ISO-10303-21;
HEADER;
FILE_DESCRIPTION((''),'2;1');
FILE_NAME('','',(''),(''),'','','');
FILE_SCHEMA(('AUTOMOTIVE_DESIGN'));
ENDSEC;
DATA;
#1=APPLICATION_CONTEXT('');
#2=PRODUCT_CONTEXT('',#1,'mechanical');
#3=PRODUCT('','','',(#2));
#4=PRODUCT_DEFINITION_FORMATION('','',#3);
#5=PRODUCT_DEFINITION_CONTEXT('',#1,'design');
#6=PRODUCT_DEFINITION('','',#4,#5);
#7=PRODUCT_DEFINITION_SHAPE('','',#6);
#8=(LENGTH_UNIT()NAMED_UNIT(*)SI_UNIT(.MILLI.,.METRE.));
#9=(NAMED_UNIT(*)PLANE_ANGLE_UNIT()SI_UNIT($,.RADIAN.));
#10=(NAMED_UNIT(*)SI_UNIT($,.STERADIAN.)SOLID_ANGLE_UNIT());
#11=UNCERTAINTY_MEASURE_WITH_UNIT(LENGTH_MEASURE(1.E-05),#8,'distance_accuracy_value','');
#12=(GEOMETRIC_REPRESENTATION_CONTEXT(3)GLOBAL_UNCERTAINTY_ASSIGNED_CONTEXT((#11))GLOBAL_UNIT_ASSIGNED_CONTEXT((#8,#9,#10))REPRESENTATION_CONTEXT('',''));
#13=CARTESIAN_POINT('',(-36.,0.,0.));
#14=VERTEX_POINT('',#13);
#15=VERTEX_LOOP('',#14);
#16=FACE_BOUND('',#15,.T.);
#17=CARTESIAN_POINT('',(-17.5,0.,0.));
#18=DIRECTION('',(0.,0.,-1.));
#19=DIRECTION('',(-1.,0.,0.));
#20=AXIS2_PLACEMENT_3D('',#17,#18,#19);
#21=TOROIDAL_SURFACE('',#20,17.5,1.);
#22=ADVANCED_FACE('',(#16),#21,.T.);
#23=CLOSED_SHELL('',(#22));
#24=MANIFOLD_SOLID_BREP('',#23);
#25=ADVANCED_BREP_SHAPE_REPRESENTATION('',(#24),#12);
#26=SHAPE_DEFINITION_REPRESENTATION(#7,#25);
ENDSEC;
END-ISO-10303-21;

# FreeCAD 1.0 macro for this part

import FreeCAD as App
import Part
import Sketcher
from FreeCAD import Vector
Q = App.Units.Quantity

doc = App.newDocument("Part")
body = doc.addObject("PartDesign::Body", "Body")

# Sketch on XZ plane
sketch1 = doc.addObject("Sketcher::SketchObject", "Sketch")
body.addObject(sketch1)
sketch1.AttachmentSupport = (doc.XZ_Plane, [""])
sketch1.MapMode = "FlatFace"
sketch1.addGeometry(Part.Circle(Vector(0, 0, 0), Vector(0, 0, 1), 1), False)
sketch1.addGeometry(Part.LineSegment(Vector(-17.5, 0, 0), Vector(-17.5, 10, 0)), True)  # axis
sketch1.addConstraint([
    Sketcher.Constraint("Vertical", 1),
    Sketcher.Constraint("Coincident", 0, 3, -1, 1),
    Sketcher.Constraint("PointOnObject", 1, 1, -1),
    Sketcher.Constraint("Diameter", 0, Q("2 mm")),
    Sketcher.Constraint("DistanceY", 1, 1, 1, 2, Q("10 mm")),
    Sketcher.Constraint("DistanceX", 1, 1, -1, 1, Q("17.5 mm")),
])
revolution = doc.addObject("PartDesign::Revolution", "Revolution")
body.addObject(revolution)
revolution.Profile = sketch1
revolution.ReferenceAxis = (sketch1, ["Axis0"])
revolution.Angle = 360

doc.recompute()
